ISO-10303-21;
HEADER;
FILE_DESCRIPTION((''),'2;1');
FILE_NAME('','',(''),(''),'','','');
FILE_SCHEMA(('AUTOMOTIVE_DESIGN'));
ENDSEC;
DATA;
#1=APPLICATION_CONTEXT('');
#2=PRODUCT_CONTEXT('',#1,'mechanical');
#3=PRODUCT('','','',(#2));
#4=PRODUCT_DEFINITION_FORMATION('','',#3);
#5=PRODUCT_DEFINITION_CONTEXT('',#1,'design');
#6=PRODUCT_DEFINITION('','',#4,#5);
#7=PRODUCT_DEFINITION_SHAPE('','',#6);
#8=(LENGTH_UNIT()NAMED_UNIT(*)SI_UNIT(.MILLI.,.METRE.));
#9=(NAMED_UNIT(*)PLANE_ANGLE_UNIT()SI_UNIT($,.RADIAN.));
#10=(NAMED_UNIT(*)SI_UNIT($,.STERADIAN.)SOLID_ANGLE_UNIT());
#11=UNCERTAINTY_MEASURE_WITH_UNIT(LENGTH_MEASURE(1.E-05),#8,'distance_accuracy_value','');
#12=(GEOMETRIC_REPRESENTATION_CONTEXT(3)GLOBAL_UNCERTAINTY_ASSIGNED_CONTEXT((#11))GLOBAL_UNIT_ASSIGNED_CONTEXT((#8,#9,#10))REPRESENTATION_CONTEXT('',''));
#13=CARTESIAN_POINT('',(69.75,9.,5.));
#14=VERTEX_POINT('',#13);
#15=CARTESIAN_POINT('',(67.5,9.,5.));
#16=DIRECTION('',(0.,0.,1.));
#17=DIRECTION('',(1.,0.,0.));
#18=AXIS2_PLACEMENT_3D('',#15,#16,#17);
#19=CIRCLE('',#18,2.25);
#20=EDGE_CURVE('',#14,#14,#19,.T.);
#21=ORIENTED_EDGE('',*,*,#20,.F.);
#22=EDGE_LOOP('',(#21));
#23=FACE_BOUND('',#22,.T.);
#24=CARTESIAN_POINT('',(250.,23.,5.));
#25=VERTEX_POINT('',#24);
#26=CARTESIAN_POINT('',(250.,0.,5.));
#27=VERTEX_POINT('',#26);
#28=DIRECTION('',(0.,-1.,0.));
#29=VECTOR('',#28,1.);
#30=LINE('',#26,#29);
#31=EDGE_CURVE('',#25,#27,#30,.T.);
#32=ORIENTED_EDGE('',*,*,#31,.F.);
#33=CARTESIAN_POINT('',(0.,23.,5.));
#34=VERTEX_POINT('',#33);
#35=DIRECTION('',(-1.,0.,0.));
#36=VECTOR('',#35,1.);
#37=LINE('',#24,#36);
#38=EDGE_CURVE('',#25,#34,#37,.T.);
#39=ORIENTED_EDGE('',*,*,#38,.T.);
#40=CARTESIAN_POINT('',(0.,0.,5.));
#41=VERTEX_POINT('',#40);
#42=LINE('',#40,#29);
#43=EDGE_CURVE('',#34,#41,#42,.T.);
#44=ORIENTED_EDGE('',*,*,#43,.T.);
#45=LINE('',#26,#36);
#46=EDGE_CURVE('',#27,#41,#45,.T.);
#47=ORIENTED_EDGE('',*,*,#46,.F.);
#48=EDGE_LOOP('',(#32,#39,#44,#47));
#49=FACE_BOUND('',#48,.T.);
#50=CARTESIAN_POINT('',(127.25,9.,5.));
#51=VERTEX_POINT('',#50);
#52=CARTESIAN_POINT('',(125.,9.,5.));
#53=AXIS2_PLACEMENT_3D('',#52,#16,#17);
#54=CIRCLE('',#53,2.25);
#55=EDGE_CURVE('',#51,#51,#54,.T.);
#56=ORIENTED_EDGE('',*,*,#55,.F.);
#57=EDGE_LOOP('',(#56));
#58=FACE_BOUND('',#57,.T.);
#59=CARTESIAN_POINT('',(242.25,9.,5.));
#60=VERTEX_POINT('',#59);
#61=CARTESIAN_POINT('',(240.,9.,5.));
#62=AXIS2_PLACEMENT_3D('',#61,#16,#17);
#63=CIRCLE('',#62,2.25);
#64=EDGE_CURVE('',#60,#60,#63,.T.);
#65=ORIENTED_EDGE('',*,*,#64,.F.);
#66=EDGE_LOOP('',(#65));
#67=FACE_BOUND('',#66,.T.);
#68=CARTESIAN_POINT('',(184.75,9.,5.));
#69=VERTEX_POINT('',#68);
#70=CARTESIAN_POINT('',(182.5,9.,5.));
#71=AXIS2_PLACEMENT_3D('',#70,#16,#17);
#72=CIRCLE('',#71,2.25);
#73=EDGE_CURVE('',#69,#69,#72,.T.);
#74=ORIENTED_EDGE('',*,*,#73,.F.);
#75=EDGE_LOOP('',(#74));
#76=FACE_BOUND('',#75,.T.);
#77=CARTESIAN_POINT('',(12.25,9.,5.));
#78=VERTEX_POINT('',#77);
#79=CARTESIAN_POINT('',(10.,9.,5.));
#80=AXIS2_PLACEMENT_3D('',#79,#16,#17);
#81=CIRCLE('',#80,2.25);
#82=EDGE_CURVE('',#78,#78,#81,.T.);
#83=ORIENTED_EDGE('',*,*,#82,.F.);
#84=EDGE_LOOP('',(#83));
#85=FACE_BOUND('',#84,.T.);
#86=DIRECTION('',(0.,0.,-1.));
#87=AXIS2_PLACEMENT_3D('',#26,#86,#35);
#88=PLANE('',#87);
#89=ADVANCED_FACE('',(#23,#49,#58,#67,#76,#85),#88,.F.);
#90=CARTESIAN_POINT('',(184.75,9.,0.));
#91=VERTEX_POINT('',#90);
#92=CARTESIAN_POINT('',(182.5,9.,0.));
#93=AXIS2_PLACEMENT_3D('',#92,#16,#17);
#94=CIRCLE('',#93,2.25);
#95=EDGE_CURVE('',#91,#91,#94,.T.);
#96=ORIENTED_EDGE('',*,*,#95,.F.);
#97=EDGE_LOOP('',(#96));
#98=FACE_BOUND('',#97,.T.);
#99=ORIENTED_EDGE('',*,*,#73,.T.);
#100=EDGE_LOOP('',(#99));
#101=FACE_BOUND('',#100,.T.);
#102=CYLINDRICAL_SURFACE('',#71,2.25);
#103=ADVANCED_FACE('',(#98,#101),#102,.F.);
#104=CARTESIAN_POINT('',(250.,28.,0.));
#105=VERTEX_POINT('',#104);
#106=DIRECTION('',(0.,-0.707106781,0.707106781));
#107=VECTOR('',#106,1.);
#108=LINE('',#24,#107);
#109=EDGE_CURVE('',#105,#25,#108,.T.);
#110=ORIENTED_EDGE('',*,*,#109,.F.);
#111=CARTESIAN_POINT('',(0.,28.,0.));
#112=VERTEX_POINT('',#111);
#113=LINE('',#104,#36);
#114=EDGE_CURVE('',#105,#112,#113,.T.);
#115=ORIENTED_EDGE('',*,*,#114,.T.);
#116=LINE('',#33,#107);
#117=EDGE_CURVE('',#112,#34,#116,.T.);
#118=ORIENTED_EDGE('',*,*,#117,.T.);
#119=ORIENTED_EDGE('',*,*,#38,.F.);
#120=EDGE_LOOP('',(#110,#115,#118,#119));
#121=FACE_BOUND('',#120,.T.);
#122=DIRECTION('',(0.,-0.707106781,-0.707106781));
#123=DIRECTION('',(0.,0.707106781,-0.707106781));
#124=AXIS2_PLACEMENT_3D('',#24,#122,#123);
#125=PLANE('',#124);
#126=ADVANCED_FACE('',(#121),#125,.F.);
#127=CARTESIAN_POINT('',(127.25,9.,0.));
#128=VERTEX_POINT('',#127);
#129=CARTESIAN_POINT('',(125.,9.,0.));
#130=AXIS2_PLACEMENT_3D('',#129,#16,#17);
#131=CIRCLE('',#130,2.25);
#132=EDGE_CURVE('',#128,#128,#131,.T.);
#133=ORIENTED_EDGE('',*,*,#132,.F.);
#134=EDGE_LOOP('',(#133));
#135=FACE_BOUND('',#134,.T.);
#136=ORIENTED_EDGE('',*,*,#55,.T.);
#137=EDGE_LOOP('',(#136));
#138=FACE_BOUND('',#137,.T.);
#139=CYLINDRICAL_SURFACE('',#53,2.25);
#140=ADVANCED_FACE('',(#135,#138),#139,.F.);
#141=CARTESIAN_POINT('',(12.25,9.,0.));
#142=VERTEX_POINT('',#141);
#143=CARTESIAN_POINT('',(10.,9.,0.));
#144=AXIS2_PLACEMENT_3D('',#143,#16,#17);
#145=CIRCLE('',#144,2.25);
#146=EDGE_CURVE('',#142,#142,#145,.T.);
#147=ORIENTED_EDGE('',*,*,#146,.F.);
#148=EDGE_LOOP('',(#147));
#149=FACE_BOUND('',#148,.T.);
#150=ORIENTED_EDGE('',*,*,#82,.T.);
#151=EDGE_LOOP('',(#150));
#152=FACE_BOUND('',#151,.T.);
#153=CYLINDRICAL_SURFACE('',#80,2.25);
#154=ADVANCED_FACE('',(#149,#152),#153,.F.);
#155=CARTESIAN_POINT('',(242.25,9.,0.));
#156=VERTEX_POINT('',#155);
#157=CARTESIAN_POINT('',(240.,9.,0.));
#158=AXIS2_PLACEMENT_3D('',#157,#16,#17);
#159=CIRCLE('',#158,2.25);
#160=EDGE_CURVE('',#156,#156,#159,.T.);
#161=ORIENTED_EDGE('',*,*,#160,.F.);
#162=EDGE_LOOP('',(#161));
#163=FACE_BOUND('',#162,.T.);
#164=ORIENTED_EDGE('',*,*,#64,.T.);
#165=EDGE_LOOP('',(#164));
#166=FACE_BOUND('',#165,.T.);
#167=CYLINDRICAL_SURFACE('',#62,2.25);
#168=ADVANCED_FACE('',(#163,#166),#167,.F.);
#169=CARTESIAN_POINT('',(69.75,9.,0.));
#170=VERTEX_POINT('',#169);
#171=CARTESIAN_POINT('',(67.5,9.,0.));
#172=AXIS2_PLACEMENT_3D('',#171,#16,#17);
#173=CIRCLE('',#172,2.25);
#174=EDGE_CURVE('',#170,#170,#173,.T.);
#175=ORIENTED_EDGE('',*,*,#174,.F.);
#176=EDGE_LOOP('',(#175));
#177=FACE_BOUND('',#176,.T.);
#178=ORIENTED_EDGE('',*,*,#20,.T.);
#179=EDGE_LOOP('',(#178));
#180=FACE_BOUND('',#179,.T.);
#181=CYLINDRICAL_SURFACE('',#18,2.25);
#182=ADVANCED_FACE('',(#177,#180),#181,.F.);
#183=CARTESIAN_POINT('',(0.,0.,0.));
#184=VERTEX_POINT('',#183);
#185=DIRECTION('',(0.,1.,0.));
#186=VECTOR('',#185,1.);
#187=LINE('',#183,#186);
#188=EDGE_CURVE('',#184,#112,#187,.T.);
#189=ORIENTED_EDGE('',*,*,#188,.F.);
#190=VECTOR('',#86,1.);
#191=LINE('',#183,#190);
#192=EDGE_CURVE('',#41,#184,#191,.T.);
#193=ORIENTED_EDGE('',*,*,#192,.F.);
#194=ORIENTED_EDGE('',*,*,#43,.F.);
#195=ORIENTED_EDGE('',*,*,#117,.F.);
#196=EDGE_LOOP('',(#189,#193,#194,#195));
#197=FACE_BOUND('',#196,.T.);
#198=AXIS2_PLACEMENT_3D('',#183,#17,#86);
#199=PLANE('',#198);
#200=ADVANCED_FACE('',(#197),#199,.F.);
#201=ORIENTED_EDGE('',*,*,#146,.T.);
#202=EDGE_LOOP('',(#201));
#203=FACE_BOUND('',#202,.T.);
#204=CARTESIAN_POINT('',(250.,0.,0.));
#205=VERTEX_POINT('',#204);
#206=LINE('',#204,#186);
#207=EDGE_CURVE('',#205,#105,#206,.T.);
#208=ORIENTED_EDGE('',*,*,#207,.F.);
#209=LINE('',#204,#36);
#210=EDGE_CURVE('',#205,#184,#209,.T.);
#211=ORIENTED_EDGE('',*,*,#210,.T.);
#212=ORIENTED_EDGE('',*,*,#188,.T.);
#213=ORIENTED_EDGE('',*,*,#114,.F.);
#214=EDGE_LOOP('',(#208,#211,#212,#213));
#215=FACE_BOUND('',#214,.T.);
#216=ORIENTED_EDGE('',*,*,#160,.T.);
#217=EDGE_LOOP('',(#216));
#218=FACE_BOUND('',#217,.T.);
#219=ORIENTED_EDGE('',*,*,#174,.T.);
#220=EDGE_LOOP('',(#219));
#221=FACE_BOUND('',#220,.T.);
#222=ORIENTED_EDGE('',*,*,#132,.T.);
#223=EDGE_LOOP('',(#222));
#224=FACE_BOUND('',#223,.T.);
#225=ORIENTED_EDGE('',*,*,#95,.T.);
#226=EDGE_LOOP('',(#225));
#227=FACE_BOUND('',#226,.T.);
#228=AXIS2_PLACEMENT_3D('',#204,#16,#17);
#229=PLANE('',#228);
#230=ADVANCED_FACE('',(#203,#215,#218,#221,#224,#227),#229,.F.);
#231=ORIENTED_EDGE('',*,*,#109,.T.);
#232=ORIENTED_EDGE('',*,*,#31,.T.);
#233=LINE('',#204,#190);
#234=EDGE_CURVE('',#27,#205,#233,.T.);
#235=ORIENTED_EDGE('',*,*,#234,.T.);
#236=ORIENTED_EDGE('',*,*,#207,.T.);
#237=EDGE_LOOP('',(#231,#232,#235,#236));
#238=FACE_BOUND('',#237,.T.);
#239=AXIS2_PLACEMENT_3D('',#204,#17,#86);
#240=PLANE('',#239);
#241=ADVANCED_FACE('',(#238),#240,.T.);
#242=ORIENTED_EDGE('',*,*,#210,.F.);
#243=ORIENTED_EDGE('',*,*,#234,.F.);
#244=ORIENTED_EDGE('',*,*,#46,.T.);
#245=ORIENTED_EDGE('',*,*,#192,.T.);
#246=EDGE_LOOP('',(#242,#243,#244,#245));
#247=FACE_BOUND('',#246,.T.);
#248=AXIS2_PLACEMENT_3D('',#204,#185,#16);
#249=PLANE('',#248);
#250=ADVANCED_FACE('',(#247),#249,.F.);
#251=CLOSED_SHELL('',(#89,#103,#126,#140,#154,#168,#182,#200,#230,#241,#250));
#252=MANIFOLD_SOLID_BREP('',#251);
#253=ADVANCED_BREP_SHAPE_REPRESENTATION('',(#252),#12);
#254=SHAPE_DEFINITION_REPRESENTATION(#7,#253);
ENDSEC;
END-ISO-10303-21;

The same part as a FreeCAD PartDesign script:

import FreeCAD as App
import Part
import Sketcher
Q = App.Units.Quantity

doc = App.newDocument("Part")
body = doc.addObject("PartDesign::Body", "Body")

# Sketch on YZ plane
sketch1 = doc.addObject("Sketcher::SketchObject", "Sketch")
body.addObject(sketch1)
sketch1.AttachmentSupport = (doc.YZ_Plane, [""])
sketch1.MapMode = "FlatFace"
sketch1.addGeometry(Part.LineSegment(App.Vector(28, 0, 0), App.Vector(23, 5, 0)), False)
sketch1.addGeometry(Part.LineSegment(App.Vector(23, 5, 0), App.Vector(0, 5, 0)), False)
sketch1.addGeometry(Part.LineSegment(App.Vector(0, 5, 0), App.Vector(0, 0, 0)), False)
sketch1.addGeometry(Part.LineSegment(App.Vector(0, 0, 0), App.Vector(28, 0, 0)), False)
sketch1.addConstraint(Sketcher.Constraint("Coincident", 0, 2, 1, 1))
sketch1.addConstraint(Sketcher.Constraint("Coincident", 1, 2, 2, 1))
sketch1.addConstraint(Sketcher.Constraint("Coincident", 2, 2, 3, 1))
sketch1.addConstraint(Sketcher.Constraint("Coincident", 3, 2, 0, 1))
sketch1.addConstraint(Sketcher.Constraint("Horizontal", 1))
sketch1.addConstraint(Sketcher.Constraint("Vertical", 2))
sketch1.addConstraint(Sketcher.Constraint("Horizontal", 3))
sketch1.addConstraint(Sketcher.Constraint("Coincident", 2, 2, -1, 1))
sketch1.addConstraint(Sketcher.Constraint("DistanceX", 1, 2, 1, 1, Q("23 mm")))
sketch1.addConstraint(Sketcher.Constraint("DistanceX", 3, 1, 3, 2, Q("28 mm")))
sketch1.addConstraint(Sketcher.Constraint("DistanceY", 2, 2, 2, 1, Q("5 mm")))
pad1 = doc.addObject("PartDesign::Pad", "Pad")
body.addObject(pad1)
pad1.Profile = sketch1
pad1.Length = 250

# Sketch on XY plane
sketch2 = doc.addObject("Sketcher::SketchObject", "Sketch001")
body.addObject(sketch2)
sketch2.AttachmentSupport = (doc.XY_Plane, [""])
sketch2.MapMode = "FlatFace"
sketch2.AttachmentOffset = App.Placement(App.Vector(0, 0, 5), App.Rotation())
sketch2.addGeometry(Part.Circle(App.Vector(10, 9, 0), App.Vector(0, 0, 1), 2.2), False)
sketch2.addConstraint(Sketcher.Constraint("Diameter", 0, Q("4.5 mm")))
sketch2.addConstraint(Sketcher.Constraint("DistanceX", -1, 1, 0, 3, Q("10 mm")))
sketch2.addConstraint(Sketcher.Constraint("DistanceY", -1, 1, 0, 3, Q("9 mm")))
doc.recompute()
hole = doc.addObject("PartDesign::Hole", "Hole")
body.addObject(hole)
hole.Profile = sketch2
hole.ThreadType = "None"
hole.Diameter = 4.5
hole.DepthType = "ThroughAll"
doc.recompute()

linearpattern = doc.addObject("PartDesign::LinearPattern", "LinearPattern")
body.addObject(linearpattern)
linearpattern.Originals = [hole]
linearpattern.Direction = (doc.X_Axis, [""])
linearpattern.Mode = "offset"
linearpattern.Offset = 57.5
linearpattern.Occurrences = 5
body.Tip = linearpattern

doc.recompute()
